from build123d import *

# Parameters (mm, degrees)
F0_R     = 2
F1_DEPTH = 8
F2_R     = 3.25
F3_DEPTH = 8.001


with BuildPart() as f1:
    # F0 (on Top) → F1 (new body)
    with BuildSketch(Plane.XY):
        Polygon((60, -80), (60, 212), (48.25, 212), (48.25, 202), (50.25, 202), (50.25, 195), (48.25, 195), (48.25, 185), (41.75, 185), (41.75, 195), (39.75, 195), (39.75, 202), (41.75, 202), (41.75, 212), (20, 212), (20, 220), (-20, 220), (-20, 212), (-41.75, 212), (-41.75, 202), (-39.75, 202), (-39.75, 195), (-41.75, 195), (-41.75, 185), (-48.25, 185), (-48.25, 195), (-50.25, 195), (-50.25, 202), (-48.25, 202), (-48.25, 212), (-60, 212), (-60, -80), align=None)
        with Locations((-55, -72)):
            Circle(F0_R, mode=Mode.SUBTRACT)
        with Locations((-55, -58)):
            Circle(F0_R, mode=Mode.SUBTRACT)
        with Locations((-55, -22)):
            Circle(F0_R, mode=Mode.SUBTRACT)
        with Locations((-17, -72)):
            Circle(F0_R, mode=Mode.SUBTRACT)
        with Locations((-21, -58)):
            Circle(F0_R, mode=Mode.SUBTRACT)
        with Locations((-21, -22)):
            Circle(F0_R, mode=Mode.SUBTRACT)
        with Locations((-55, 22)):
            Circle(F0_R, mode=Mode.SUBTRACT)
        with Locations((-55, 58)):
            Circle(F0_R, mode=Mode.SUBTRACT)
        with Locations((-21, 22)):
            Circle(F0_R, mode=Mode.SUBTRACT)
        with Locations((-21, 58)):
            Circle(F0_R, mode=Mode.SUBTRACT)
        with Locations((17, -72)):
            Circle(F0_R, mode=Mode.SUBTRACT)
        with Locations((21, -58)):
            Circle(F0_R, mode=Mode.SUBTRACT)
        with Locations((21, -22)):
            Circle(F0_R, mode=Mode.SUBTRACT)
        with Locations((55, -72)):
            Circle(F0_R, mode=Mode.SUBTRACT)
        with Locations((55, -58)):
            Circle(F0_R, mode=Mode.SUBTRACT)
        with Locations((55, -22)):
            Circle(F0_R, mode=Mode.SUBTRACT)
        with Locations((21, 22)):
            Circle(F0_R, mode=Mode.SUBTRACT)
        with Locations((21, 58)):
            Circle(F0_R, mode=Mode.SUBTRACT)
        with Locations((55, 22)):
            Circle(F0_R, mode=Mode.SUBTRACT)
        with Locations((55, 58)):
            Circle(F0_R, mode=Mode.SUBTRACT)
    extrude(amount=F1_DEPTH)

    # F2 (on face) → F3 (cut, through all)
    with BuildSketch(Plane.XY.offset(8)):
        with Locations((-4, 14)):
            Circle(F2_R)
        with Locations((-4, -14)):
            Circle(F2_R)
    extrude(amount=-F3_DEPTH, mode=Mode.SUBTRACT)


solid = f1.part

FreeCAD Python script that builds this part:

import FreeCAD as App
import Part
import Sketcher

V = App.Vector
Q = App.Units.Quantity


def add_polygon(sketch, points):
    """Adds a closed chain of lines whose ends are joined by coincident constraints."""
    first, n = sketch.GeometryCount, len(points)
    for a, b in zip(points, points[1:] + points[:1]):
        sketch.addGeometry(Part.LineSegment(App.Vector(*a, 0), App.Vector(*b, 0)), False)
    for i in range(n):
        sketch.addConstraint(Sketcher.Constraint("Coincident", first + i, 2, first + (i + 1) % n, 1))

doc = App.newDocument("Part")
body = doc.addObject("PartDesign::Body", "Body")

sketch1 = body.newObject("Sketcher::SketchObject", "Sketch")
sketch1.AttachmentSupport = (doc.getObject("XY_Plane"), [""])
sketch1.MapMode = "FlatFace"
add_polygon(sketch1, [(60, -80), (60, 212), (48.2, 212), (48.2, 202), (50.2, 202), (50.2, 195), (48.2, 195), (48.2, 185), (41.8, 185), (41.8, 195), (39.8, 195), (39.8, 202), (41.8, 202), (41.8, 212), (20, 212), (20, 220), (-20, 220), (-20, 212), (-41.8, 212), (-41.8, 202), (-39.8, 202), (-39.8, 195), (-41.8, 195), (-41.8, 185), (-48.2, 185), (-48.2, 195), (-50.2, 195), (-50.2, 202), (-48.2, 202), (-48.2, 212), (-60, 212), (-60, -80)])
sketch1.addGeometry(Part.Circle(V(-55, -72, 0), V(0, 0, 1), 2), False)
sketch1.addGeometry(Part.Circle(V(-55, -58, 0), V(0, 0, 1), 2), False)
sketch1.addGeometry(Part.Circle(V(-17, -72, 0), V(0, 0, 1), 2), False)
sketch1.addGeometry(Part.Circle(V(-21, -58, 0), V(0, 0, 1), 2), False)
sketch1.addGeometry(Part.Circle(V(-55, -22, 0), V(0, 0, 1), 2), False)
sketch1.addGeometry(Part.Circle(V(-21, -22, 0), V(0, 0, 1), 2), False)
sketch1.addGeometry(Part.Circle(V(17, -72, 0), V(0, 0, 1), 2), False)
sketch1.addGeometry(Part.Circle(V(21, -58, 0), V(0, 0, 1), 2), False)
sketch1.addGeometry(Part.Circle(V(55, -72, 0), V(0, 0, 1), 2), False)
sketch1.addGeometry(Part.Circle(V(55, -58, 0), V(0, 0, 1), 2), False)
sketch1.addGeometry(Part.Circle(V(21, -22, 0), V(0, 0, 1), 2), False)
sketch1.addGeometry(Part.Circle(V(55, -22, 0), V(0, 0, 1), 2), False)
sketch1.addGeometry(Part.Circle(V(-55, 22, 0), V(0, 0, 1), 2), False)
sketch1.addGeometry(Part.Circle(V(-21, 22, 0), V(0, 0, 1), 2), False)
sketch1.addGeometry(Part.Circle(V(-55, 58, 0), V(0, 0, 1), 2), False)
sketch1.addGeometry(Part.Circle(V(-21, 58, 0), V(0, 0, 1), 2), False)
sketch1.addGeometry(Part.Circle(V(21, 22, 0), V(0, 0, 1), 2), False)
sketch1.addGeometry(Part.Circle(V(55, 22, 0), V(0, 0, 1), 2), False)
sketch1.addGeometry(Part.Circle(V(21, 58, 0), V(0, 0, 1), 2), False)
sketch1.addGeometry(Part.Circle(V(55, 58, 0), V(0, 0, 1), 2), False)
sketch1.addConstraint(Sketcher.Constraint("Vertical", 0))
sketch1.addConstraint(Sketcher.Constraint("Horizontal", 1))
sketch1.addConstraint(Sketcher.Constraint("Vertical", 2))
sketch1.addConstraint(Sketcher.Constraint("Horizontal", 3))
sketch1.addConstraint(Sketcher.Constraint("Vertical", 4))
sketch1.addConstraint(Sketcher.Constraint("Horizontal", 5))
sketch1.addConstraint(Sketcher.Constraint("Vertical", 6))
sketch1.addConstraint(Sketcher.Constraint("Horizontal", 7))
sketch1.addConstraint(Sketcher.Constraint("Vertical", 8))
sketch1.addConstraint(Sketcher.Constraint("Horizontal", 9))
sketch1.addConstraint(Sketcher.Constraint("Vertical", 10))
sketch1.addConstraint(Sketcher.Constraint("Horizontal", 11))
sketch1.addConstraint(Sketcher.Constraint("Vertical", 12))
sketch1.addConstraint(Sketcher.Constraint("Horizontal", 13))
sketch1.addConstraint(Sketcher.Constraint("Vertical", 14))
sketch1.addConstraint(Sketcher.Constraint("Horizontal", 15))
sketch1.addConstraint(Sketcher.Constraint("Vertical", 16))
sketch1.addConstraint(Sketcher.Constraint("Horizontal", 17))
sketch1.addConstraint(Sketcher.Constraint("Vertical", 18))
sketch1.addConstraint(Sketcher.Constraint("Horizontal", 19))
sketch1.addConstraint(Sketcher.Constraint("Vertical", 20))
sketch1.addConstraint(Sketcher.Constraint("Horizontal", 21))
sketch1.addConstraint(Sketcher.Constraint("Vertical", 22))
sketch1.addConstraint(Sketcher.Constraint("Horizontal", 23))
sketch1.addConstraint(Sketcher.Constraint("Vertical", 24))
sketch1.addConstraint(Sketcher.Constraint("Horizontal", 25))
sketch1.addConstraint(Sketcher.Constraint("Vertical", 26))
sketch1.addConstraint(Sketcher.Constraint("Horizontal", 27))
sketch1.addConstraint(Sketcher.Constraint("Vertical", 28))
sketch1.addConstraint(Sketcher.Constraint("Horizontal", 29))
sketch1.addConstraint(Sketcher.Constraint("Vertical", 30))
sketch1.addConstraint(Sketcher.Constraint("Horizontal", 31))
sketch1.addConstraint(Sketcher.Constraint("Equal", 32, 33))
sketch1.addConstraint(Sketcher.Constraint("Equal", 33, 34))
sketch1.addConstraint(Sketcher.Constraint("Equal", 34, 35))
sketch1.addConstraint(Sketcher.Constraint("Equal", 35, 36))
sketch1.addConstraint(Sketcher.Constraint("Equal", 36, 37))
sketch1.addConstraint(Sketcher.Constraint("Equal", 37, 38))
sketch1.addConstraint(Sketcher.Constraint("Equal", 38, 39))
sketch1.addConstraint(Sketcher.Constraint("Equal", 39, 40))
sketch1.addConstraint(Sketcher.Constraint("Equal", 40, 41))
sketch1.addConstraint(Sketcher.Constraint("Equal", 41, 42))
sketch1.addConstraint(Sketcher.Constraint("Equal", 42, 43))
sketch1.addConstraint(Sketcher.Constraint("Equal", 43, 44))
sketch1.addConstraint(Sketcher.Constraint("Equal", 44, 45))
sketch1.addConstraint(Sketcher.Constraint("Equal", 45, 46))
sketch1.addConstraint(Sketcher.Constraint("Equal", 46, 47))
sketch1.addConstraint(Sketcher.Constraint("Equal", 47, 48))
sketch1.addConstraint(Sketcher.Constraint("Equal", 48, 49))
sketch1.addConstraint(Sketcher.Constraint("Equal", 49, 50))
sketch1.addConstraint(Sketcher.Constraint("Equal", 50, 51))
sketch1.addConstraint(Sketcher.Constraint("Symmetric", 43, 3, 44, 3, -1, 1))
sketch1.addConstraint(Sketcher.Constraint("Symmetric", 42, 3, 45, 3, -1, 1))
sketch1.addConstraint(Sketcher.Constraint("Symmetric", 41, 3, 46, 3, -1, 1))
sketch1.addConstraint(Sketcher.Constraint("Symmetric", 39, 3, 47, 3, -1, 1))
sketch1.addConstraint(Sketcher.Constraint("Symmetric", 37, 3, 48, 3, -1, 1))
sketch1.addConstraint(Sketcher.Constraint("Symmetric", 36, 3, 49, 3, -1, 1))
sketch1.addConstraint(Sketcher.Constraint("Symmetric", 35, 3, 50, 3, -1, 1))
sketch1.addConstraint(Sketcher.Constraint("Symmetric", 33, 3, 51, 3, -1, 1))
sketch1.addConstraint(Sketcher.Constraint("Symmetric", 34, 3, 38, 3, -2))
sketch1.addConstraint(Sketcher.Constraint("Symmetric", 35, 3, 39, 3, -2))
sketch1.addConstraint(Sketcher.Constraint("Symmetric", 32, 3, 40, 3, -2))
sketch1.addConstraint(Sketcher.Constraint("Symmetric", 33, 3, 41, 3, -2))
sketch1.addConstraint(Sketcher.Constraint("Symmetric", 37, 3, 42, 3, -2))
sketch1.addConstraint(Sketcher.Constraint("Symmetric", 36, 3, 43, 3, -2))
sketch1.addConstraint(Sketcher.Constraint("Symmetric", 13, 2, 16, 2, -2))
sketch1.addConstraint(Sketcher.Constraint("Symmetric", 11, 2, 18, 2, -2))
sketch1.addConstraint(Sketcher.Constraint("Symmetric", 9, 2, 20, 2, -2))
sketch1.addConstraint(Sketcher.Constraint("Symmetric", 7, 2, 22, 2, -2))
sketch1.addConstraint(Sketcher.Constraint("Symmetric", 5, 2, 24, 2, -2))
sketch1.addConstraint(Sketcher.Constraint("Symmetric", 3, 2, 26, 2, -2))
sketch1.addConstraint(Sketcher.Constraint("Symmetric", 1, 2, 28, 2, -2))
sketch1.addConstraint(Sketcher.Constraint("Horizontal", 32, 3, 34, 3))
sketch1.addConstraint(Sketcher.Constraint("Horizontal", 33, 3, 35, 3))
sketch1.addConstraint(Sketcher.Constraint("Horizontal", 36, 3, 37, 3))
sketch1.addConstraint(Sketcher.Constraint("Horizontal", 5, 2, 8, 2))
sketch1.addConstraint(Sketcher.Constraint("Horizontal", 3, 2, 10, 2))
sketch1.addConstraint(Sketcher.Constraint("Horizontal", 1, 2, 12, 2))
sketch1.addConstraint(Sketcher.Constraint("Vertical", 32, 3, 33, 3))
sketch1.addConstraint(Sketcher.Constraint("Vertical", 33, 3, 36, 3))
sketch1.addConstraint(Sketcher.Constraint("Vertical", 35, 3, 37, 3))
sketch1.addConstraint(Sketcher.Constraint("Vertical", 2, 2, 5, 2))
sketch1.addConstraint(Sketcher.Constraint("Vertical", 8, 2, 11, 2))
sketch1.addConstraint(Sketcher.Constraint("Equal", 5, 9))
sketch1.addConstraint(Sketcher.Constraint("Equal", 1, 29))
sketch1.addConstraint(Sketcher.Constraint("Equal", 2, 6))
sketch1.addConstraint(Sketcher.Constraint("Diameter", 32, Q("4 mm")))
sketch1.addConstraint(Sketcher.Constraint("DistanceX", 3, 1, 3, 2, Q("2 mm")))
sketch1.addConstraint(Sketcher.Constraint("DistanceX", 15, 2, 15, 1, Q("40 mm")))
sketch1.addConstraint(Sketcher.Constraint("DistanceX", 31, 1, 31, 2, Q("120 mm")))
sketch1.addConstraint(Sketcher.Constraint("DistanceY", 0, 1, 0, 2, Q("292 mm")))
sketch1.addConstraint(Sketcher.Constraint("DistanceY", 2, 2, 2, 1, Q("10 mm")))
sketch1.addConstraint(Sketcher.Constraint("DistanceY", 4, 2, 4, 1, Q("7 mm")))
sketch1.addConstraint(Sketcher.Constraint("DistanceY", 14, 1, 14, 2, Q("8 mm")))
sketch1.addConstraint(Sketcher.Constraint("DistanceX", 7, 2, 7, 1, Q("6.5 mm")))
sketch1.addConstraint(Sketcher.Constraint("DistanceX", 32, 3, -1, 1, Q("55 mm")))
sketch1.addConstraint(Sketcher.Constraint("DistanceY", 32, 3, -1, 1, Q("72 mm")))
sketch1.addConstraint(Sketcher.Constraint("DistanceY", 33, 3, -1, 1, Q("58 mm")))
sketch1.addConstraint(Sketcher.Constraint("DistanceX", 34, 3, -1, 1, Q("17 mm")))
sketch1.addConstraint(Sketcher.Constraint("DistanceX", 35, 3, -1, 1, Q("21 mm")))
sketch1.addConstraint(Sketcher.Constraint("DistanceY", 36, 3, -1, 1, Q("22 mm")))
sketch1.addConstraint(Sketcher.Constraint("DistanceY", -1, 1, 0, 2, Q("212 mm")))
sketch1.addConstraint(Sketcher.Constraint("DistanceX", 1, 2, 1, 1, Q("11.75 mm")))
pad1 = body.newObject("PartDesign::Pad", "Pad")
pad1.Profile = sketch1
pad1.Length = 8

sketch2 = body.newObject("Sketcher::SketchObject", "Sketch001")
sketch2.AttachmentSupport = (doc.getObject("XY_Plane"), [""])
sketch2.MapMode = "FlatFace"
sketch2.AttachmentOffset = App.Placement(V(0, 0, 8), App.Rotation())
sketch2.addGeometry(Part.Circle(V(-4, 14, 0), V(0, 0, 1), 3.2), False)
sketch2.addGeometry(Part.Circle(V(-4, -14, 0), V(0, 0, 1), 3.2), False)
sketch2.addConstraint(Sketcher.Constraint("Equal", 0, 1))
sketch2.addConstraint(Sketcher.Constraint("Symmetric", 0, 3, 1, 3, -1))
sketch2.addConstraint(Sketcher.Constraint("Diameter", 0, Q("6.5 mm")))
sketch2.addConstraint(Sketcher.Constraint("DistanceX", 0, 3, -1, 1, Q("4 mm")))
sketch2.addConstraint(Sketcher.Constraint("DistanceY", -1, 1, 0, 3, Q("14 mm")))
pocket1 = body.newObject("PartDesign::Pocket", "Pocket")
pocket1.Profile = sketch2
pocket1.Type = "ThroughAll"

doc.recompute()
